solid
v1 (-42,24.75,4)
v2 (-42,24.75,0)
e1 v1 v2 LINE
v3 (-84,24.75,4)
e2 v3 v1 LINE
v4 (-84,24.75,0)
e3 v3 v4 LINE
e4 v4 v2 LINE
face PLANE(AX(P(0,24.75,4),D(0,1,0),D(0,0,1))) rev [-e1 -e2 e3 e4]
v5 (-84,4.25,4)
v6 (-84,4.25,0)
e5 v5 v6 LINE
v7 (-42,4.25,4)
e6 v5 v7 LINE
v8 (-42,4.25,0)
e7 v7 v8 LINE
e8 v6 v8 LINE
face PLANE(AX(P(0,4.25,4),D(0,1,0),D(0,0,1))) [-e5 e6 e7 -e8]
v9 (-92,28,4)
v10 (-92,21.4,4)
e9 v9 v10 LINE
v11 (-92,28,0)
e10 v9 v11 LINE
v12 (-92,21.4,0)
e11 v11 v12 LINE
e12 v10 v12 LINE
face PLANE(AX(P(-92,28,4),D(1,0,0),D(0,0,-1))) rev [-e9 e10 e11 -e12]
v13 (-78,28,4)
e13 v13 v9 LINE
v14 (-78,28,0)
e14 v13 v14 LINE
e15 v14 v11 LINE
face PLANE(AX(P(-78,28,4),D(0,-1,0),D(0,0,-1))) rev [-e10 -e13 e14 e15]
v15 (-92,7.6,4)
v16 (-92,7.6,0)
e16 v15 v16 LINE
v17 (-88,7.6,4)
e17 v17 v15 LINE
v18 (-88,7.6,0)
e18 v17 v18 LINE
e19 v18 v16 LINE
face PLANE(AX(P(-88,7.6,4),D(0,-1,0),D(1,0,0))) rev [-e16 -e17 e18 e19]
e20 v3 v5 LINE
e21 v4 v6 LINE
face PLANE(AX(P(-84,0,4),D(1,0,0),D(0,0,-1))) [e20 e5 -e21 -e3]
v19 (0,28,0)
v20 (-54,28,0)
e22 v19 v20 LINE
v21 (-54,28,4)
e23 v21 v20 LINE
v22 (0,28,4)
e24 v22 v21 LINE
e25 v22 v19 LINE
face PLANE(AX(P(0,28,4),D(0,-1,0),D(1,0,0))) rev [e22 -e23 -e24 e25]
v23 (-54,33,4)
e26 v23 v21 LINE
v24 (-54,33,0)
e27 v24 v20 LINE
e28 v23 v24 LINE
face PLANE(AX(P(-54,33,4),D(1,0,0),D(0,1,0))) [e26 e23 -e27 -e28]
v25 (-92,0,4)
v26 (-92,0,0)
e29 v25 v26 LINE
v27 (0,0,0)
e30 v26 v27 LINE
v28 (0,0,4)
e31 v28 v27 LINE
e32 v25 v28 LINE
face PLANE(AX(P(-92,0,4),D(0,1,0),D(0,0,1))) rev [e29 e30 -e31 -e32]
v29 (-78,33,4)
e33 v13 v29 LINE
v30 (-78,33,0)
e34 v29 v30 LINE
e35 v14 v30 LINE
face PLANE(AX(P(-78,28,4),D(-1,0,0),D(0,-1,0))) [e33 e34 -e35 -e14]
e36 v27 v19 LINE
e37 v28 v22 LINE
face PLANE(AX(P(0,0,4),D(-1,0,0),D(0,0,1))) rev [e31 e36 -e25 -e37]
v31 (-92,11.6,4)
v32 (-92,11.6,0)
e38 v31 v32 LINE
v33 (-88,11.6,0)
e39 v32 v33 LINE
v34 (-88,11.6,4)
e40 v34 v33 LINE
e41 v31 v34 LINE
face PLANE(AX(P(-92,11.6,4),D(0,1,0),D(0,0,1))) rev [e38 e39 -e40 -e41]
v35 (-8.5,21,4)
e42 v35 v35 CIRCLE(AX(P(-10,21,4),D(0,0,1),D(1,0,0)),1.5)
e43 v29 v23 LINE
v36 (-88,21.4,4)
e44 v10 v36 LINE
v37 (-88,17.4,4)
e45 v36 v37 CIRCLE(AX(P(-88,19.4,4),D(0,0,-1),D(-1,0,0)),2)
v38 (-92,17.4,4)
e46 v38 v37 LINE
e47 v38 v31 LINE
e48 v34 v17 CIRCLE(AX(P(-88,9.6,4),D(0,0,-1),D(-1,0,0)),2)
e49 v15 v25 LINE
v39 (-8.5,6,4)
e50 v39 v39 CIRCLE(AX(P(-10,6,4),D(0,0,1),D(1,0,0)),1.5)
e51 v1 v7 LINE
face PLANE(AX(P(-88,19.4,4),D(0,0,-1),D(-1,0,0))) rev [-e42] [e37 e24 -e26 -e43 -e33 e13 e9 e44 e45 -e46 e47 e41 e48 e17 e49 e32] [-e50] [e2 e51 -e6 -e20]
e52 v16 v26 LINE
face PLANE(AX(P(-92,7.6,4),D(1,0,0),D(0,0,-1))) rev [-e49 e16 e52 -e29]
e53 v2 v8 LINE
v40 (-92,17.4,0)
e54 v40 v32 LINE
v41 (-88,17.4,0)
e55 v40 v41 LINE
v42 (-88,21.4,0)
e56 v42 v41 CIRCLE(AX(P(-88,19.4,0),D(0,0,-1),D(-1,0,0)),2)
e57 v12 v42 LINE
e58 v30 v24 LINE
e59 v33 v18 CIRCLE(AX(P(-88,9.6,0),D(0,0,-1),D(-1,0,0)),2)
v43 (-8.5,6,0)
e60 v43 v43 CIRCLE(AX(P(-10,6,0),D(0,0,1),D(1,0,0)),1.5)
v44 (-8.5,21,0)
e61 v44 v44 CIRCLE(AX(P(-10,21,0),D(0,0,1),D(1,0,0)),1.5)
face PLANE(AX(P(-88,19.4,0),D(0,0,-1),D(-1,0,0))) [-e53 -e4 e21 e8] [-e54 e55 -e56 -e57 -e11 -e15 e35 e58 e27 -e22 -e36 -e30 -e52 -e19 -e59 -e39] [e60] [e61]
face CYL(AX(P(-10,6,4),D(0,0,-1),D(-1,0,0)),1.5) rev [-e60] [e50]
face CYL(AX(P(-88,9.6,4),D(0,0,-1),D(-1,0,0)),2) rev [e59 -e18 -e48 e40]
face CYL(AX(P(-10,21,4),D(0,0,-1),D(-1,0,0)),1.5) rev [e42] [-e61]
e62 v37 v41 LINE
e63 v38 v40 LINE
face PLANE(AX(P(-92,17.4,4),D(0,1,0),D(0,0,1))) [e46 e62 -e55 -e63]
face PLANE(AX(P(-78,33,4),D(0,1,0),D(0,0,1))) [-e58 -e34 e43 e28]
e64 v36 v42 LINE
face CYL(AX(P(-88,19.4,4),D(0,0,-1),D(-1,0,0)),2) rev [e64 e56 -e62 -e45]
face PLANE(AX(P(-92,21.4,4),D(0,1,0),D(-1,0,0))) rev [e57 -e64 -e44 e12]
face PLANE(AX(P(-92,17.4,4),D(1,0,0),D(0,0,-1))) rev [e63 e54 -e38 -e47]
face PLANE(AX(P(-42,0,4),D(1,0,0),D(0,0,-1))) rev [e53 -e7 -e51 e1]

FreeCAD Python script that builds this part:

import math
import FreeCAD as App
import Part
import Sketcher

V = App.Vector
Q = App.Units.Quantity


def add_polygon(sketch, points):
    """Adds a closed chain of lines whose ends are joined by coincident constraints."""
    first, n = sketch.GeometryCount, len(points)
    for a, b in zip(points, points[1:] + points[:1]):
        sketch.addGeometry(Part.LineSegment(App.Vector(*a, 0), App.Vector(*b, 0)), False)
    for i in range(n):
        sketch.addConstraint(Sketcher.Constraint("Coincident", first + i, 2, first + (i + 1) % n, 1))

doc = App.newDocument("Part")
body = doc.addObject("PartDesign::Body", "Body")

# Sketch on XY plane
sketch1 = doc.addObject("Sketcher::SketchObject", "Sketch")
body.addObject(sketch1)
sketch1.AttachmentSupport = (doc.XY_Plane, [""])
sketch1.MapMode = "FlatFace"
sketch1.addGeometry(Part.LineSegment(V(0, 0, 0), V(0, 28, 0)), False)  # 0
sketch1.addGeometry(Part.LineSegment(V(0, 28, 0), V(-54, 28, 0)), False)  # 1
sketch1.addGeometry(Part.LineSegment(V(-54, 28, 0), V(-54, 33, 0)), False)  # 2
sketch1.addGeometry(Part.LineSegment(V(-54, 33, 0), V(-78, 33, 0)), False)  # 3
sketch1.addGeometry(Part.LineSegment(V(-78, 33, 0), V(-78, 28, 0)), False)  # 4
sketch1.addGeometry(Part.LineSegment(V(-78, 28, 0), V(-92, 28, 0)), False)  # 5
sketch1.addGeometry(Part.LineSegment(V(-92, 28, 0), V(-92, 21.4, 0)), False)  # 6
sketch1.addGeometry(Part.LineSegment(V(-92, 21.4, 0), V(-88, 21.4, 0)), False)  # 7
sketch1.addGeometry(Part.ArcOfCircle(Part.Circle(V(-88, 19.4, 0), V(0, 0, 1), 2), math.radians(-90), math.radians(90)), False)  # 8
sketch1.addGeometry(Part.LineSegment(V(-88, 17.4, 0), V(-92, 17.4, 0)), False)  # 9
sketch1.addGeometry(Part.LineSegment(V(-92, 17.4, 0), V(-92, 11.6, 0)), False)  # 10
sketch1.addGeometry(Part.LineSegment(V(-92, 11.6, 0), V(-88, 11.6, 0)), False)  # 11
sketch1.addGeometry(Part.ArcOfCircle(Part.Circle(V(-88, 9.6, 0), V(0, 0, 1), 2), math.radians(-90), math.radians(90)), False)  # 12
sketch1.addGeometry(Part.LineSegment(V(-88, 7.6, 0), V(-92, 7.6, 0)), False)  # 13
sketch1.addGeometry(Part.LineSegment(V(-92, 7.6, 0), V(-92, 0, 0)), False)  # 14
sketch1.addGeometry(Part.LineSegment(V(-92, 0, 0), V(0, 0, 0)), False)  # 15
sketch1.addGeometry(Part.Circle(V(-10, 6, 0), V(0, 0, 1), 1.5), False)  # 16
add_polygon(sketch1, [(-42, 4.2), (-84, 4.2), (-84, 24.8), (-42, 24.8)])  # lines 17-20
sketch1.addGeometry(Part.Circle(V(-10, 21, 0), V(0, 0, 1), 1.5), False)  # 21
sketch1.addConstraint(Sketcher.Constraint("Coincident", 0, 2, 1, 1))
sketch1.addConstraint(Sketcher.Constraint("Coincident", 1, 2, 2, 1))
sketch1.addConstraint(Sketcher.Constraint("Coincident", 2, 2, 3, 1))
sketch1.addConstraint(Sketcher.Constraint("Coincident", 3, 2, 4, 1))
sketch1.addConstraint(Sketcher.Constraint("Coincident", 4, 2, 5, 1))
sketch1.addConstraint(Sketcher.Constraint("Coincident", 5, 2, 6, 1))
sketch1.addConstraint(Sketcher.Constraint("Coincident", 6, 2, 7, 1))
sketch1.addConstraint(Sketcher.Constraint("Tangent", 7, 2, 8, 2))
sketch1.addConstraint(Sketcher.Constraint("Tangent", 8, 1, 9, 1))
sketch1.addConstraint(Sketcher.Constraint("Coincident", 9, 2, 10, 1))
sketch1.addConstraint(Sketcher.Constraint("Coincident", 10, 2, 11, 1))
sketch1.addConstraint(Sketcher.Constraint("Tangent", 11, 2, 12, 2))
sketch1.addConstraint(Sketcher.Constraint("Tangent", 12, 1, 13, 1))
sketch1.addConstraint(Sketcher.Constraint("Coincident", 13, 2, 14, 1))
sketch1.addConstraint(Sketcher.Constraint("Coincident", 14, 2, 15, 1))
sketch1.addConstraint(Sketcher.Constraint("Coincident", 15, 2, 0, 1))
sketch1.addConstraint(Sketcher.Constraint("Vertical", 0))
sketch1.addConstraint(Sketcher.Constraint("Horizontal", 1))
sketch1.addConstraint(Sketcher.Constraint("Vertical", 2))
sketch1.addConstraint(Sketcher.Constraint("Horizontal", 3))
sketch1.addConstraint(Sketcher.Constraint("Vertical", 4))
sketch1.addConstraint(Sketcher.Constraint("Horizontal", 5))
sketch1.addConstraint(Sketcher.Constraint("Vertical", 6))
sketch1.addConstraint(Sketcher.Constraint("Horizontal", 7))
sketch1.addConstraint(Sketcher.Constraint("Horizontal", 9))
sketch1.addConstraint(Sketcher.Constraint("Vertical", 10))
sketch1.addConstraint(Sketcher.Constraint("Horizontal", 11))
sketch1.addConstraint(Sketcher.Constraint("Horizontal", 13))
sketch1.addConstraint(Sketcher.Constraint("Vertical", 14))
sketch1.addConstraint(Sketcher.Constraint("Horizontal", 15))
sketch1.addConstraint(Sketcher.Constraint("Horizontal", 17))
sketch1.addConstraint(Sketcher.Constraint("Vertical", 18))
sketch1.addConstraint(Sketcher.Constraint("Horizontal", 19))
sketch1.addConstraint(Sketcher.Constraint("Vertical", 20))
sketch1.addConstraint(Sketcher.Constraint("Coincident", 15, 2, -1, 1))
sketch1.addConstraint(Sketcher.Constraint("Equal", 8, 12))
sketch1.addConstraint(Sketcher.Constraint("Equal", 16, 21))
sketch1.addConstraint(Sketcher.Constraint("Horizontal", 1, 2, 4, 2))
sketch1.addConstraint(Sketcher.Constraint("Vertical", 8, 3, 12, 3))
sketch1.addConstraint(Sketcher.Constraint("Vertical", 16, 3, 21, 3))
sketch1.addConstraint(Sketcher.Constraint("Vertical", 6, 2, 9, 2))
sketch1.addConstraint(Sketcher.Constraint("Vertical", 10, 2, 13, 2))
sketch1.addConstraint(Sketcher.Constraint("Diameter", 16, Q("3 mm")))
sketch1.addConstraint(Sketcher.Constraint("Radius", 8, Q("2 mm")))
sketch1.addConstraint(Sketcher.Constraint("DistanceX", 1, 2, 1, 1, Q("54 mm")))
sketch1.addConstraint(Sketcher.Constraint("DistanceX", 3, 2, 3, 1, Q("24 mm")))
sketch1.addConstraint(Sketcher.Constraint("DistanceX", 5, 2, 5, 1, Q("14 mm")))
sketch1.addConstraint(Sketcher.Constraint("DistanceX", 7, 1, 7, 2, Q("4 mm")))
sketch1.addConstraint(Sketcher.Constraint("DistanceX", 17, 2, 17, 1, Q("42 mm")))
sketch1.addConstraint(Sketcher.Constraint("DistanceY", 0, 1, 0, 2, Q("28 mm")))
sketch1.addConstraint(Sketcher.Constraint("DistanceY", 2, 1, 2, 2, Q("5 mm")))
sketch1.addConstraint(Sketcher.Constraint("DistanceY", 6, 2, 6, 1, Q("6.6 mm")))
sketch1.addConstraint(Sketcher.Constraint("DistanceY", 10, 2, 10, 1, Q("5.8 mm")))
sketch1.addConstraint(Sketcher.Constraint("DistanceY", 18, 1, 18, 2, Q("20.5 mm")))
sketch1.addConstraint(Sketcher.Constraint("DistanceX", 16, 3, -1, 1, Q("10 mm")))
sketch1.addConstraint(Sketcher.Constraint("DistanceY", -1, 1, 16, 3, Q("6 mm")))
sketch1.addConstraint(Sketcher.Constraint("DistanceY", -1, 1, 21, 3, Q("21 mm")))
sketch1.addConstraint(Sketcher.Constraint("DistanceX", 17, 2, -1, 1, Q("84 mm")))
sketch1.addConstraint(Sketcher.Constraint("DistanceY", -1, 1, 17, 2, Q("4.25 mm")))
pad1 = doc.addObject("PartDesign::Pad", "Pad")
body.addObject(pad1)
pad1.Profile = sketch1
pad1.Length = 4

doc.recompute()
